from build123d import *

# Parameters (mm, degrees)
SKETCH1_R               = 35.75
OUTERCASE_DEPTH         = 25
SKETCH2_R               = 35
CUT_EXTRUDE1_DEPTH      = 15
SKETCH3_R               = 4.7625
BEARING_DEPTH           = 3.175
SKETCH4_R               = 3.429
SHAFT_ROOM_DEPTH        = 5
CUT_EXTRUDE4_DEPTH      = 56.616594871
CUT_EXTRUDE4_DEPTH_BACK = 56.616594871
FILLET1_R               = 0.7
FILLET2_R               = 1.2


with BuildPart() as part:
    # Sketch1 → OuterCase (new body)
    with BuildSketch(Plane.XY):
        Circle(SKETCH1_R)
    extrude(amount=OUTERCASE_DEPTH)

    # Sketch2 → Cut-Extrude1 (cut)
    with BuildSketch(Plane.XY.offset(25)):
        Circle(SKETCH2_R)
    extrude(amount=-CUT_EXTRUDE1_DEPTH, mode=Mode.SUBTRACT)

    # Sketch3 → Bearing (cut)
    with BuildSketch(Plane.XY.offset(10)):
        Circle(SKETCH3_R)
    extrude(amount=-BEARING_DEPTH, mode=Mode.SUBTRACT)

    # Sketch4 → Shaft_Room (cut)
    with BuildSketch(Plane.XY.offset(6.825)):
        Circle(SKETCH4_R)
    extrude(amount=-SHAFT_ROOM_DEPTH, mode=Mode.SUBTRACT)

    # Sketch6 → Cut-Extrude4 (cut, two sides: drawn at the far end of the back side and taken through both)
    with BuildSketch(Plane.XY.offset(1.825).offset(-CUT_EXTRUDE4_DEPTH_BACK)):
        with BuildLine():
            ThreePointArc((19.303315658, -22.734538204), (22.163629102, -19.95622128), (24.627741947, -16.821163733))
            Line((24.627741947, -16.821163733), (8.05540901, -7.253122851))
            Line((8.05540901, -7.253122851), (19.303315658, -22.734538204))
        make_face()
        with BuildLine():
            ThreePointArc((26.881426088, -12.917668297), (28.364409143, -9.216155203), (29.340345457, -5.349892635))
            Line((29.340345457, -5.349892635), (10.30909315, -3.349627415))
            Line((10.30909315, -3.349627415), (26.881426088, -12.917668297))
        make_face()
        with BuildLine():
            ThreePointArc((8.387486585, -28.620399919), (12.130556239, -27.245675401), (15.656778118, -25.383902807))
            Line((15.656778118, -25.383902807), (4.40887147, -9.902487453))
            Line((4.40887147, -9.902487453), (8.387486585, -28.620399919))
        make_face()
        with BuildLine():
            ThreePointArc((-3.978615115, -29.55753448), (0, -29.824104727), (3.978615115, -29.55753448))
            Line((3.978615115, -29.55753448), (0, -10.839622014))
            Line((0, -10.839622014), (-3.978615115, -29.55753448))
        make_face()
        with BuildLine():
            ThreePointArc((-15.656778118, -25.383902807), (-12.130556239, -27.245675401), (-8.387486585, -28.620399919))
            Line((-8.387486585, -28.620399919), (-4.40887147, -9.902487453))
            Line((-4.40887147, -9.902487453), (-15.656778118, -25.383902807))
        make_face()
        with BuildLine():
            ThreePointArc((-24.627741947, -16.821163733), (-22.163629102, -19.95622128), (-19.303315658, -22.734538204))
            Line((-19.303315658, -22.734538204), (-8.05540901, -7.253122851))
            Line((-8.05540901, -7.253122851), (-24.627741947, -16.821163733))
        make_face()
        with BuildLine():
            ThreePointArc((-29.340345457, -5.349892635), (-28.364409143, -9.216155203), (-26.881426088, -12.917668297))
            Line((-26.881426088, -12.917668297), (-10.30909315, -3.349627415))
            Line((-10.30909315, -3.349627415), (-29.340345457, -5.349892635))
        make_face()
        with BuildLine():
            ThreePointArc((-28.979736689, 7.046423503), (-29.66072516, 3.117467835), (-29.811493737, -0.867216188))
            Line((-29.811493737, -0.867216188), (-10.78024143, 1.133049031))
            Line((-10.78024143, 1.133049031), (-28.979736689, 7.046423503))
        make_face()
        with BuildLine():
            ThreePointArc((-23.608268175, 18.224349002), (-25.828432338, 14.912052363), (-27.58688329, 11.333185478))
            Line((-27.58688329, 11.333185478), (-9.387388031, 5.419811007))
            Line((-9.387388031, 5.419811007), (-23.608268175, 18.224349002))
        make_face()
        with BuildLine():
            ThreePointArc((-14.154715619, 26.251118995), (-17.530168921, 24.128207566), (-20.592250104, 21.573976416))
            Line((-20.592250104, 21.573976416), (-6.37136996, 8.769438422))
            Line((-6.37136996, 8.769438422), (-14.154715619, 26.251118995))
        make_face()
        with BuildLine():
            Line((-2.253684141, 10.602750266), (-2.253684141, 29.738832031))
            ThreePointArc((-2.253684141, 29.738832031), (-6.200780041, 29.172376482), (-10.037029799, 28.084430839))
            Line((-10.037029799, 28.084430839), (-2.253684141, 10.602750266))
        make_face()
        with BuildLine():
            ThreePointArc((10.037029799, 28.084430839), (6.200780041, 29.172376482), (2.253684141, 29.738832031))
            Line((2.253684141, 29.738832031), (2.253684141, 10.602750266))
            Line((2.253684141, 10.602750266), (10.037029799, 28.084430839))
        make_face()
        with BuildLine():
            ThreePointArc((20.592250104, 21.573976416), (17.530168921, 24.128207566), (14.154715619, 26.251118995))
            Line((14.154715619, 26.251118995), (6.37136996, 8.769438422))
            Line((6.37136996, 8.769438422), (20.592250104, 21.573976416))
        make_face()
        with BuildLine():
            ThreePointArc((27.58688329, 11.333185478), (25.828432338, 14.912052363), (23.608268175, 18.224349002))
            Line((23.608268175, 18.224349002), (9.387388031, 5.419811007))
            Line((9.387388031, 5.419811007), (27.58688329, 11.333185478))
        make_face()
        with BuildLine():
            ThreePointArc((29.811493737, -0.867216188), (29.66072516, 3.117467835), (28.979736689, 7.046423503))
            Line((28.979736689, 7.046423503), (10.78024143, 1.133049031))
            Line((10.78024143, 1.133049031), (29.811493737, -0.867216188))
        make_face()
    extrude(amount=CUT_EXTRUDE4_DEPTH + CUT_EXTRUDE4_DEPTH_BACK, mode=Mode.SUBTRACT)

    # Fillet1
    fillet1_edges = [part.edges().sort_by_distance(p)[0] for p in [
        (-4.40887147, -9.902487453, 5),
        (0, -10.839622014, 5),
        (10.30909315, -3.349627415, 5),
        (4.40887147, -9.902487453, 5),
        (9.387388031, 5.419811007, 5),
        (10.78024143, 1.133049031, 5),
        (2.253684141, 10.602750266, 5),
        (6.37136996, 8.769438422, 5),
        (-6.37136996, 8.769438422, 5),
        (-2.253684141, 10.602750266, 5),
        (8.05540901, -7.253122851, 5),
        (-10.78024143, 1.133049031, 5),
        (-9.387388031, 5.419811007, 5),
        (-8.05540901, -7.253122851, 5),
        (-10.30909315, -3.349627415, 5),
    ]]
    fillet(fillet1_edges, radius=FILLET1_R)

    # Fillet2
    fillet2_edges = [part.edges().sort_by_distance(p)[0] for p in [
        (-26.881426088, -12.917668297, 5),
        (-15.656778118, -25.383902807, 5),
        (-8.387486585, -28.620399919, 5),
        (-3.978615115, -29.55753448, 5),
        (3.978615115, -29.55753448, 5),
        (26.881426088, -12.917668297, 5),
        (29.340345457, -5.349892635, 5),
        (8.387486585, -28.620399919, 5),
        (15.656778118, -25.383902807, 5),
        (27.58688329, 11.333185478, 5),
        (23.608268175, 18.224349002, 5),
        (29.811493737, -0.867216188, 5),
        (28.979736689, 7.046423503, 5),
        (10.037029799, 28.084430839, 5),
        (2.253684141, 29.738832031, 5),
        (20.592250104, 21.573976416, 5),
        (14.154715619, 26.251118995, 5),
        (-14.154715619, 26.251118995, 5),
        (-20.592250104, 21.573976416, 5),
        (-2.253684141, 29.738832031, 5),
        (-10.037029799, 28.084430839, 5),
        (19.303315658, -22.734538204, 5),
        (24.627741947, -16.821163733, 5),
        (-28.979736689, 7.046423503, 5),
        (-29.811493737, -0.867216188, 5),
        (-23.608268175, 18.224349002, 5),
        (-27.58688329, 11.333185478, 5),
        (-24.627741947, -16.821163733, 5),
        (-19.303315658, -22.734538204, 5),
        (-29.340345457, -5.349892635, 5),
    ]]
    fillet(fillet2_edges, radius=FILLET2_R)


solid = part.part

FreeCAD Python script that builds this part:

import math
import FreeCAD as App
import Part
import Sketcher
from FreeCAD import Vector
Q = App.Units.Quantity


def edges_at(feature, points):
    """Names of the edges that pass closest to the given points."""
    edges = feature.Shape.Edges
    near = lambda p: min(range(len(edges)), key=lambda i: edges[i].distToShape(Part.Vertex(*p))[0])
    return sorted({f"Edge{near(p) + 1}" for p in points})

doc = App.newDocument("Part")
body = doc.addObject("PartDesign::Body", "Body")

# Sketch on XY plane
sketch1 = doc.addObject("Sketcher::SketchObject", "Sketch")
body.addObject(sketch1)
sketch1.AttachmentSupport = (doc.XY_Plane, [""])
sketch1.MapMode = "FlatFace"
sketch1.addGeometry(Part.Circle(Vector(0, 0, 0), Vector(0, 0, 1), 36), False)
sketch1.addConstraint(Sketcher.Constraint("Coincident", 0, 3, -1, 1))
sketch1.addConstraint(Sketcher.Constraint("Diameter", 0, Q("71.5 mm")))
pad1 = doc.addObject("PartDesign::Pad", "Pad")
body.addObject(pad1)
pad1.Profile = sketch1
pad1.Length = 25

# Sketch on XY plane
sketch2 = doc.addObject("Sketcher::SketchObject", "Sketch001")
body.addObject(sketch2)
sketch2.AttachmentSupport = (doc.XY_Plane, [""])
sketch2.MapMode = "FlatFace"
sketch2.AttachmentOffset = App.Placement(Vector(0, 0, 25), App.Rotation())
sketch2.addGeometry(Part.Circle(Vector(0, 0, 0), Vector(0, 0, 1), 35), False)
sketch2.addConstraint(Sketcher.Constraint("Coincident", 0, 3, -1, 1))
sketch2.addConstraint(Sketcher.Constraint("Diameter", 0, Q("70 mm")))
pocket1 = doc.addObject("PartDesign::Pocket", "Pocket")
body.addObject(pocket1)
pocket1.Profile = sketch2
pocket1.Length = 15

# Sketch on XY plane
sketch3 = doc.addObject("Sketcher::SketchObject", "Sketch002")
body.addObject(sketch3)
sketch3.AttachmentSupport = (doc.XY_Plane, [""])
sketch3.MapMode = "FlatFace"
sketch3.AttachmentOffset = App.Placement(Vector(0, 0, 10), App.Rotation())
sketch3.addGeometry(Part.Circle(Vector(0, 0, 0), Vector(0, 0, 1), 4.8), False)
sketch3.addConstraint(Sketcher.Constraint("Coincident", 0, 3, -1, 1))
sketch3.addConstraint(Sketcher.Constraint("Diameter", 0, Q("9.525 mm")))
pocket2 = doc.addObject("PartDesign::Pocket", "Pocket001")
body.addObject(pocket2)
pocket2.Profile = sketch3
pocket2.Length = 3.175

# Sketch on XY plane
sketch4 = doc.addObject("Sketcher::SketchObject", "Sketch003")
body.addObject(sketch4)
sketch4.AttachmentSupport = (doc.XY_Plane, [""])
sketch4.MapMode = "FlatFace"
sketch4.AttachmentOffset = App.Placement(Vector(0, 0, 6.825), App.Rotation())
sketch4.addGeometry(Part.Circle(Vector(0, 0, 0), Vector(0, 0, 1), 3.4), False)
sketch4.addConstraint(Sketcher.Constraint("Coincident", 0, 3, -1, 1))
sketch4.addConstraint(Sketcher.Constraint("Diameter", 0, Q("6.858 mm")))
pocket3 = doc.addObject("PartDesign::Pocket", "Pocket002")
body.addObject(pocket3)
pocket3.Profile = sketch4
pocket3.Length = 5

# Sketch on XY plane
sketch5 = doc.addObject("Sketcher::SketchObject", "Sketch004")
body.addObject(sketch5)
sketch5.AttachmentSupport = (doc.XY_Plane, [""])
sketch5.MapMode = "FlatFace"
sketch5.AttachmentOffset = App.Placement(Vector(0, 0, 1.825), App.Rotation())
sketch5.addGeometry(Part.ArcOfCircle(Part.Circle(Vector(0, 0, 0), Vector(0, 0, 1), 30), math.radians(-49.67), math.radians(-34.33)), False)
sketch5.addGeometry(Part.LineSegment(Vector(25, -17, 0), Vector(8, -7, 0)), False)
sketch5.addGeometry(Part.LineSegment(Vector(8, -7, 0), Vector(19, -23, 0)), False)
sketch5.addGeometry(Part.ArcOfCircle(Part.Circle(Vector(0, 0, 0), Vector(0, 0, 1), 30), math.radians(-25.67), math.radians(-10.33)), False)
sketch5.addGeometry(Part.LineSegment(Vector(29, -5, 0), Vector(10, -3, 0)), False)
sketch5.addGeometry(Part.LineSegment(Vector(10, -3, 0), Vector(27, -13, 0)), False)
sketch5.addGeometry(Part.ArcOfCircle(Part.Circle(Vector(0, 0, 0), Vector(0, 0, 1), 30), math.radians(-73.67), math.radians(-58.33)), False)
sketch5.addGeometry(Part.LineSegment(Vector(16, -25, 0), Vector(4, -10, 0)), False)
sketch5.addGeometry(Part.LineSegment(Vector(4, -10, 0), Vector(8, -29, 0)), False)
sketch5.addGeometry(Part.ArcOfCircle(Part.Circle(Vector(0, 0, 0), Vector(0, 0, 1), 30), math.radians(-97.67), math.radians(-82.33)), False)
sketch5.addGeometry(Part.LineSegment(Vector(4, -30, 0), Vector(0, -11, 0)), False)
sketch5.addGeometry(Part.LineSegment(Vector(0, -11, 0), Vector(-4, -30, 0)), False)
sketch5.addGeometry(Part.ArcOfCircle(Part.Circle(Vector(0, 0, 0), Vector(0, 0, 1), 30), math.radians(-121.67), math.radians(-106.33)), False)
sketch5.addGeometry(Part.LineSegment(Vector(-8, -29, 0), Vector(-4, -10, 0)), False)
sketch5.addGeometry(Part.LineSegment(Vector(-4, -10, 0), Vector(-16, -25, 0)), False)
sketch5.addGeometry(Part.ArcOfCircle(Part.Circle(Vector(0, 0, 0), Vector(0, 0, 1), 30), math.radians(-145.67), math.radians(-130.33)), False)
sketch5.addGeometry(Part.LineSegment(Vector(-19, -23, 0), Vector(-8, -7, 0)), False)
sketch5.addGeometry(Part.LineSegment(Vector(-8, -7, 0), Vector(-25, -17, 0)), False)
sketch5.addGeometry(Part.ArcOfCircle(Part.Circle(Vector(0, 0, 0), Vector(0, 0, 1), 30), math.radians(-169.67), math.radians(-154.33)), False)
sketch5.addGeometry(Part.LineSegment(Vector(-27, -13, 0), Vector(-10, -3, 0)), False)
sketch5.addGeometry(Part.LineSegment(Vector(-10, -3, 0), Vector(-29, -5, 0)), False)
sketch5.addGeometry(Part.ArcOfCircle(Part.Circle(Vector(0, 0, 0), Vector(0, 0, 1), 30), math.radians(166.33), math.radians(181.67)), False)
sketch5.addGeometry(Part.LineSegment(Vector(-30, -1, 0), Vector(-11, 1, 0)), False)
sketch5.addGeometry(Part.LineSegment(Vector(-11, 1, 0), Vector(-29, 7, 0)), False)
sketch5.addGeometry(Part.ArcOfCircle(Part.Circle(Vector(0, 0, 0), Vector(0, 0, 1), 30), math.radians(142.33), math.radians(157.67)), False)
sketch5.addGeometry(Part.LineSegment(Vector(-28, 11, 0), Vector(-9, 5, 0)), False)
sketch5.addGeometry(Part.LineSegment(Vector(-9, 5, 0), Vector(-24, 18, 0)), False)
sketch5.addGeometry(Part.ArcOfCircle(Part.Circle(Vector(0, 0, 0), Vector(0, 0, 1), 30), math.radians(118.33), math.radians(133.67)), False)
sketch5.addGeometry(Part.LineSegment(Vector(-21, 22, 0), Vector(-6, 9, 0)), False)
sketch5.addGeometry(Part.LineSegment(Vector(-6, 9, 0), Vector(-14, 26, 0)), False)
sketch5.addGeometry(Part.LineSegment(Vector(-2, 11, 0), Vector(-2, 30, 0)), False)
sketch5.addGeometry(Part.ArcOfCircle(Part.Circle(Vector(0, 0, 0), Vector(0, 0, 1), 30), math.radians(94.33), math.radians(109.67)), False)
sketch5.addGeometry(Part.LineSegment(Vector(-10, 28, 0), Vector(-2, 11, 0)), False)
sketch5.addGeometry(Part.ArcOfCircle(Part.Circle(Vector(0, 0, 0), Vector(0, 0, 1), 30), math.radians(70.33), math.radians(85.67)), False)
sketch5.addGeometry(Part.LineSegment(Vector(2, 30, 0), Vector(2, 11, 0)), False)
sketch5.addGeometry(Part.LineSegment(Vector(2, 11, 0), Vector(10, 28, 0)), False)
sketch5.addGeometry(Part.ArcOfCircle(Part.Circle(Vector(0, 0, 0), Vector(0, 0, 1), 30), math.radians(46.33), math.radians(61.67)), False)
sketch5.addGeometry(Part.LineSegment(Vector(14, 26, 0), Vector(6, 9, 0)), False)
sketch5.addGeometry(Part.LineSegment(Vector(6, 9, 0), Vector(21, 22, 0)), False)
sketch5.addGeometry(Part.ArcOfCircle(Part.Circle(Vector(0, 0, 0), Vector(0, 0, 1), 30), math.radians(22.33), math.radians(37.67)), False)
sketch5.addGeometry(Part.LineSegment(Vector(24, 18, 0), Vector(9, 5, 0)), False)
sketch5.addGeometry(Part.LineSegment(Vector(9, 5, 0), Vector(28, 11, 0)), False)
sketch5.addGeometry(Part.ArcOfCircle(Part.Circle(Vector(0, 0, 0), Vector(0, 0, 1), 30), math.radians(-1.67), math.radians(13.67)), False)
sketch5.addGeometry(Part.LineSegment(Vector(29, 7, 0), Vector(11, 1, 0)), False)
sketch5.addGeometry(Part.LineSegment(Vector(11, 1, 0), Vector(30, -1, 0)), False)
sketch5.addConstraint(Sketcher.Constraint("Coincident", 0, 2, 1, 1))
sketch5.addConstraint(Sketcher.Constraint("Coincident", 1, 2, 2, 1))
sketch5.addConstraint(Sketcher.Constraint("Coincident", 2, 2, 0, 1))
sketch5.addConstraint(Sketcher.Constraint("Coincident", 3, 2, 4, 1))
sketch5.addConstraint(Sketcher.Constraint("Coincident", 4, 2, 5, 1))
sketch5.addConstraint(Sketcher.Constraint("Coincident", 5, 2, 3, 1))
sketch5.addConstraint(Sketcher.Constraint("Coincident", 6, 2, 7, 1))
sketch5.addConstraint(Sketcher.Constraint("Coincident", 7, 2, 8, 1))
sketch5.addConstraint(Sketcher.Constraint("Coincident", 8, 2, 6, 1))
sketch5.addConstraint(Sketcher.Constraint("Coincident", 9, 2, 10, 1))
sketch5.addConstraint(Sketcher.Constraint("Coincident", 10, 2, 11, 1))
sketch5.addConstraint(Sketcher.Constraint("Coincident", 11, 2, 9, 1))
sketch5.addConstraint(Sketcher.Constraint("Coincident", 12, 2, 13, 1))
sketch5.addConstraint(Sketcher.Constraint("Coincident", 13, 2, 14, 1))
sketch5.addConstraint(Sketcher.Constraint("Coincident", 14, 2, 12, 1))
sketch5.addConstraint(Sketcher.Constraint("Coincident", 15, 2, 16, 1))
sketch5.addConstraint(Sketcher.Constraint("Coincident", 16, 2, 17, 1))
sketch5.addConstraint(Sketcher.Constraint("Coincident", 17, 2, 15, 1))
sketch5.addConstraint(Sketcher.Constraint("Coincident", 18, 2, 19, 1))
sketch5.addConstraint(Sketcher.Constraint("Coincident", 19, 2, 20, 1))
sketch5.addConstraint(Sketcher.Constraint("Coincident", 20, 2, 18, 1))
sketch5.addConstraint(Sketcher.Constraint("Coincident", 21, 2, 22, 1))
sketch5.addConstraint(Sketcher.Constraint("Coincident", 22, 2, 23, 1))
sketch5.addConstraint(Sketcher.Constraint("Coincident", 23, 2, 21, 1))
sketch5.addConstraint(Sketcher.Constraint("Coincident", 24, 2, 25, 1))
sketch5.addConstraint(Sketcher.Constraint("Coincident", 25, 2, 26, 1))
sketch5.addConstraint(Sketcher.Constraint("Coincident", 26, 2, 24, 1))
sketch5.addConstraint(Sketcher.Constraint("Coincident", 27, 2, 28, 1))
sketch5.addConstraint(Sketcher.Constraint("Coincident", 28, 2, 29, 1))
sketch5.addConstraint(Sketcher.Constraint("Coincident", 29, 2, 27, 1))
sketch5.addConstraint(Sketcher.Constraint("Coincident", 30, 2, 31, 1))
sketch5.addConstraint(Sketcher.Constraint("Coincident", 31, 2, 32, 1))
sketch5.addConstraint(Sketcher.Constraint("Coincident", 32, 2, 30, 1))
sketch5.addConstraint(Sketcher.Constraint("Coincident", 33, 2, 34, 1))
sketch5.addConstraint(Sketcher.Constraint("Coincident", 34, 2, 35, 1))
sketch5.addConstraint(Sketcher.Constraint("Coincident", 35, 2, 33, 1))
sketch5.addConstraint(Sketcher.Constraint("Coincident", 36, 2, 37, 1))
sketch5.addConstraint(Sketcher.Constraint("Coincident", 37, 2, 38, 1))
sketch5.addConstraint(Sketcher.Constraint("Coincident", 38, 2, 36, 1))
sketch5.addConstraint(Sketcher.Constraint("Coincident", 39, 2, 40, 1))
sketch5.addConstraint(Sketcher.Constraint("Coincident", 40, 2, 41, 1))
sketch5.addConstraint(Sketcher.Constraint("Coincident", 41, 2, 39, 1))
sketch5.addConstraint(Sketcher.Constraint("Coincident", 42, 2, 43, 1))
sketch5.addConstraint(Sketcher.Constraint("Coincident", 43, 2, 44, 1))
sketch5.addConstraint(Sketcher.Constraint("Coincident", 44, 2, 42, 1))
sketch5.addConstraint(Sketcher.Constraint("Vertical", 30))
sketch5.addConstraint(Sketcher.Constraint("Vertical", 34))
sketch5.addConstraint(Sketcher.Constraint("Coincident", 0, 3, -1, 1))
sketch5.addConstraint(Sketcher.Constraint("Coincident", 3, 3, -1, 1))
sketch5.addConstraint(Sketcher.Constraint("Coincident", 6, 3, -1, 1))
sketch5.addConstraint(Sketcher.Constraint("Coincident", 9, 3, -1, 1))
sketch5.addConstraint(Sketcher.Constraint("Coincident", 12, 3, -1, 1))
sketch5.addConstraint(Sketcher.Constraint("Coincident", 15, 3, -1, 1))
sketch5.addConstraint(Sketcher.Constraint("Coincident", 18, 3, -1, 1))
sketch5.addConstraint(Sketcher.Constraint("Coincident", 21, 3, -1, 1))
sketch5.addConstraint(Sketcher.Constraint("Coincident", 24, 3, -1, 1))
sketch5.addConstraint(Sketcher.Constraint("Coincident", 27, 3, -1, 1))
sketch5.addConstraint(Sketcher.Constraint("Coincident", 31, 3, -1, 1))
sketch5.addConstraint(Sketcher.Constraint("Coincident", 33, 3, -1, 1))
sketch5.addConstraint(Sketcher.Constraint("Coincident", 36, 3, -1, 1))
sketch5.addConstraint(Sketcher.Constraint("Coincident", 39, 3, -1, 1))
sketch5.addConstraint(Sketcher.Constraint("Coincident", 42, 3, -1, 1))
sketch5.addConstraint(Sketcher.Constraint("Equal", 0, 3))
sketch5.addConstraint(Sketcher.Constraint("Equal", 3, 6))
sketch5.addConstraint(Sketcher.Constraint("Equal", 6, 9))
sketch5.addConstraint(Sketcher.Constraint("Equal", 9, 12))
sketch5.addConstraint(Sketcher.Constraint("Equal", 12, 15))
sketch5.addConstraint(Sketcher.Constraint("Equal", 15, 18))
sketch5.addConstraint(Sketcher.Constraint("Equal", 18, 21))
sketch5.addConstraint(Sketcher.Constraint("Equal", 21, 24))
sketch5.addConstraint(Sketcher.Constraint("Equal", 24, 27))
sketch5.addConstraint(Sketcher.Constraint("Equal", 27, 31))
sketch5.addConstraint(Sketcher.Constraint("Equal", 31, 33))
sketch5.addConstraint(Sketcher.Constraint("Equal", 33, 36))
sketch5.addConstraint(Sketcher.Constraint("Equal", 36, 39))
sketch5.addConstraint(Sketcher.Constraint("Equal", 39, 42))
sketch5.addConstraint(Sketcher.Constraint("Symmetric", 7, 2, 13, 2, -2))
sketch5.addConstraint(Sketcher.Constraint("Symmetric", 1, 2, 16, 2, -2))
sketch5.addConstraint(Sketcher.Constraint("Symmetric", 4, 2, 19, 2, -2))
sketch5.addConstraint(Sketcher.Constraint("Symmetric", 32, 2, 34, 2, -2))
sketch5.addConstraint(Sketcher.Constraint("Symmetric", 28, 2, 37, 2, -2))
sketch5.addConstraint(Sketcher.Constraint("Symmetric", 25, 2, 40, 2, -2))
sketch5.addConstraint(Sketcher.Constraint("Symmetric", 22, 2, 43, 2, -2))
sketch5.addConstraint(Sketcher.Constraint("PointOnObject", 10, 2, -2))
sketch5.addConstraint(Sketcher.Constraint("Parallel", 1, 5))
sketch5.addConstraint(Sketcher.Constraint("Parallel", 2, 7))
sketch5.addConstraint(Sketcher.Constraint("Parallel", 8, 10))
sketch5.addConstraint(Sketcher.Constraint("Parallel", 11, 13))
sketch5.addConstraint(Sketcher.Constraint("Parallel", 14, 16))
sketch5.addConstraint(Sketcher.Constraint("Parallel", 17, 19))
sketch5.addConstraint(Sketcher.Constraint("Parallel", 20, 22))
sketch5.addConstraint(Sketcher.Constraint("Parallel", 23, 25))
sketch5.addConstraint(Sketcher.Constraint("Parallel", 26, 28))
sketch5.addConstraint(Sketcher.Constraint("Parallel", 29, 32))
sketch5.addConstraint(Sketcher.Constraint("Parallel", 35, 37))
sketch5.addConstraint(Sketcher.Constraint("Parallel", 38, 40))
sketch5.addConstraint(Sketcher.Constraint("Parallel", 41, 43))
sketch5.addConstraint(Sketcher.Constraint("Parallel", 4, 44))
sketch5.addConstraint(Sketcher.Constraint("Horizontal", 9, 2, 11, 2))
sketch5.addConstraint(Sketcher.Constraint("Horizontal", 6, 2, 14, 2))
sketch5.addConstraint(Sketcher.Constraint("Horizontal", 0, 2, 17, 2))
sketch5.addConstraint(Sketcher.Constraint("Horizontal", 3, 2, 20, 2))
sketch5.addConstraint(Sketcher.Constraint("Horizontal", 31, 2, 35, 2))
sketch5.addConstraint(Sketcher.Constraint("Horizontal", 27, 2, 38, 2))
sketch5.addConstraint(Sketcher.Constraint("Horizontal", 24, 2, 41, 2))
sketch5.addConstraint(Sketcher.Constraint("Equal", 1, 2))
sketch5.addConstraint(Sketcher.Constraint("Equal", 2, 4))
sketch5.addConstraint(Sketcher.Constraint("Equal", 4, 5))
sketch5.addConstraint(Sketcher.Constraint("Equal", 5, 7))
sketch5.addConstraint(Sketcher.Constraint("Equal", 7, 8))
sketch5.addConstraint(Sketcher.Constraint("Equal", 8, 10))
sketch5.addConstraint(Sketcher.Constraint("Equal", 20, 22))
sketch5.addConstraint(Sketcher.Constraint("Equal", 22, 23))
sketch5.addConstraint(Sketcher.Constraint("Equal", 23, 25))
sketch5.addConstraint(Sketcher.Constraint("Equal", 25, 26))
sketch5.addConstraint(Sketcher.Constraint("Equal", 26, 28))
sketch5.addConstraint(Sketcher.Constraint("Equal", 28, 29))
sketch5.addConstraint(Sketcher.Constraint("Equal", 29, 32))
sketch5.addConstraint(Sketcher.Constraint("Angle", 1, Q("150 deg")))
sketch5.addConstraint(Sketcher.Constraint("Angle", 2, Q("-54 deg")))
sketch5.addConstraint(Sketcher.Constraint("Angle", 4, Q("174 deg")))
sketch5.addConstraint(Sketcher.Constraint("Angle", 8, Q("-78 deg")))
sketch5.addConstraint(Sketcher.Constraint("Angle", 23, Q("162 deg")))
sketch5.addConstraint(Sketcher.Constraint("Angle", 26, Q("138 deg")))
sketch5.addConstraint(Sketcher.Constraint("Angle", 29, Q("114 deg")))
sketch5.addConstraint(Sketcher.Constraint("Radius", 0, Q("29.824105 mm")))
sketch5.addConstraint(Sketcher.Constraint("DistanceY", 30, 1, 30, 2, Q("19.136082 mm")))
sketch5.addConstraint(Sketcher.Constraint("DistanceY", 8, 2, -1, 1, Q("28.6204 mm")))
pocket4 = doc.addObject("PartDesign::Pocket", "Pocket003")
body.addObject(pocket4)
pocket4.Profile = sketch5
pocket4.Type = "ThroughAll"
pocket4.Midplane = True
doc.recompute()

fillet = doc.addObject("PartDesign::Fillet", "Fillet")
body.addObject(fillet)
fillet.Base = (pocket4, edges_at(pocket4, [
    (-4.409, -9.902, 5),
    (0, -10.84, 5),
    (10.309, -3.35, 5),
    (4.409, -9.902, 5),
    (9.387, 5.42, 5),
    (10.78, 1.133, 5),
    (2.254, 10.603, 5),
    (6.371, 8.769, 5),
    (-6.371, 8.769, 5),
    (-2.254, 10.603, 5),
    (8.055, -7.253, 5),
    (-10.78, 1.133, 5),
    (-9.387, 5.42, 5),
    (-8.055, -7.253, 5),
    (-10.309, -3.35, 5),
]))
fillet.Radius = 0.7
doc.recompute()

fillet2 = doc.addObject("PartDesign::Fillet", "Fillet001")
body.addObject(fillet2)
fillet2.Base = (fillet, edges_at(fillet, [
    (-26.881, -12.918, 5),
    (-15.657, -25.384, 5),
    (-8.387, -28.62, 5),
    (-3.979, -29.558, 5),
    (3.979, -29.558, 5),
    (26.881, -12.918, 5),
    (29.34, -5.35, 5),
    (8.387, -28.62, 5),
    (15.657, -25.384, 5),
    (27.587, 11.333, 5),
    (23.608, 18.224, 5),
    (29.811, -0.867, 5),
    (28.98, 7.046, 5),
    (10.037, 28.084, 5),
    (2.254, 29.739, 5),
    (20.592, 21.574, 5),
    (14.155, 26.251, 5),
    (-14.155, 26.251, 5),
    (-20.592, 21.574, 5),
    (-2.254, 29.739, 5),
    (-10.037, 28.084, 5),
    (19.303, -22.735, 5),
    (24.628, -16.821, 5),
    (-28.98, 7.046, 5),
    (-29.811, -0.867, 5),
    (-23.608, 18.224, 5),
    (-27.587, 11.333, 5),
    (-24.628, -16.821, 5),
    (-19.303, -22.735, 5),
    (-29.34, -5.35, 5),
]))
fillet2.Radius = 1.2

doc.recompute()
